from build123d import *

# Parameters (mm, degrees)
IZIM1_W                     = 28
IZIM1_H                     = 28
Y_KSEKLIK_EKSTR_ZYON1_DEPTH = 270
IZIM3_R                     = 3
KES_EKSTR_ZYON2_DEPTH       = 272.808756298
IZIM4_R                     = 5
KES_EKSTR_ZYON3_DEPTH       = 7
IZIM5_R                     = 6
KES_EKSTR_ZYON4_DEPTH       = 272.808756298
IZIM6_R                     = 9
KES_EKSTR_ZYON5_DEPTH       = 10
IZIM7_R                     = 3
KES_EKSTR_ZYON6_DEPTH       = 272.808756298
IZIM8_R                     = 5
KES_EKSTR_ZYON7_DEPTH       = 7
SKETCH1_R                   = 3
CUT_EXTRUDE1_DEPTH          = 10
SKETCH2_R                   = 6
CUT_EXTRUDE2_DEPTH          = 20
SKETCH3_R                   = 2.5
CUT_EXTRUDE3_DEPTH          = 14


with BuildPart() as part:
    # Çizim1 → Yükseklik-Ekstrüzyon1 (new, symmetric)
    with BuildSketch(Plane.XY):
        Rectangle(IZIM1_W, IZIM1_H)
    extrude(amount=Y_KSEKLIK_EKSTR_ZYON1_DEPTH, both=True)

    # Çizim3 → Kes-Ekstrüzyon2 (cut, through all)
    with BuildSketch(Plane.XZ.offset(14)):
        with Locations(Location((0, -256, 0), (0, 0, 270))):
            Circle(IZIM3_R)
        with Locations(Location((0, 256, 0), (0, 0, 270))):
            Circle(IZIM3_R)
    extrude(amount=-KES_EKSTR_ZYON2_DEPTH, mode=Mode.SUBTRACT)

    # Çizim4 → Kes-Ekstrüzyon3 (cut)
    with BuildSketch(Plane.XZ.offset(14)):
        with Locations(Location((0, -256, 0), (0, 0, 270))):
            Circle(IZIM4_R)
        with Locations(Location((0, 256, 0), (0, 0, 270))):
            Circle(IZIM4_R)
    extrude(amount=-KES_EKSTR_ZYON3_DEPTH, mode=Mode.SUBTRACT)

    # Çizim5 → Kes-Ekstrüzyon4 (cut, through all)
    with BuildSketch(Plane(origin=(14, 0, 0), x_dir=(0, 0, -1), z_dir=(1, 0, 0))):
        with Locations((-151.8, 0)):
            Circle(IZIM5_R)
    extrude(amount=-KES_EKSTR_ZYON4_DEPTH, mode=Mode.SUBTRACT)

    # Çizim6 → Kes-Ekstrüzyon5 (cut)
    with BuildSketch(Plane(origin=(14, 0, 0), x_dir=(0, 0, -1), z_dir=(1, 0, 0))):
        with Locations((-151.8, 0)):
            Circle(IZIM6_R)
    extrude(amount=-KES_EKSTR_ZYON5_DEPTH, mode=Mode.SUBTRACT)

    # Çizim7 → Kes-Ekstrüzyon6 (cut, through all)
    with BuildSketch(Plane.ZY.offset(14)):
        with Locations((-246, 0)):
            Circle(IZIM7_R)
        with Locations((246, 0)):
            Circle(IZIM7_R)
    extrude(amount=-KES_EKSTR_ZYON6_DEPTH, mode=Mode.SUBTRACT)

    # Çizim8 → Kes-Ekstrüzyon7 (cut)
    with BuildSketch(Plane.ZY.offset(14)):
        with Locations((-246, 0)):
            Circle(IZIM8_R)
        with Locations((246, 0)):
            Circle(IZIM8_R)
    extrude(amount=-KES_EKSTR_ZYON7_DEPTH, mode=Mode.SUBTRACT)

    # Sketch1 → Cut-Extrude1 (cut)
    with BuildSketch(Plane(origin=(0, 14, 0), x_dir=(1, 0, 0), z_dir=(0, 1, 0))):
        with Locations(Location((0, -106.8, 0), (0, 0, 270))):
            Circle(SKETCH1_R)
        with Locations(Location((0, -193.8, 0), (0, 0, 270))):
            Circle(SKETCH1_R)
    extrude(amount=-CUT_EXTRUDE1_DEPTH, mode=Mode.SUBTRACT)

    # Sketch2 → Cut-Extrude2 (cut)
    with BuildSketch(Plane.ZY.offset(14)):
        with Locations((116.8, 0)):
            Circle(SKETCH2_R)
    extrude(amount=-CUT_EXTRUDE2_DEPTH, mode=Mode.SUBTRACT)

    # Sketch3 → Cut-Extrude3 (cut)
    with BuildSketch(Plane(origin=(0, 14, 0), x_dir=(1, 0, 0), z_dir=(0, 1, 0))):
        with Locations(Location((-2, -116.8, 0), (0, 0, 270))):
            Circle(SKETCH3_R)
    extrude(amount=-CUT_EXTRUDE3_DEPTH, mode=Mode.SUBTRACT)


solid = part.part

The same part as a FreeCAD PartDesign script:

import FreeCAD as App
import Part
import Sketcher
Q = App.Units.Quantity

doc = App.newDocument("Part")
body = doc.addObject("PartDesign::Body", "Body")

# Sketch on XY plane
sketch1 = doc.addObject("Sketcher::SketchObject", "Sketch")
body.addObject(sketch1)
sketch1.AttachmentSupport = (doc.XY_Plane, [""])
sketch1.MapMode = "FlatFace"
sketch1.addGeometry([
    Part.LineSegment(App.Vector(-14, 14, 0), App.Vector(-14, -14, 0)),
    Part.LineSegment(App.Vector(-14, -14, 0), App.Vector(14, -14, 0)),
    Part.LineSegment(App.Vector(14, -14, 0), App.Vector(14, 14, 0)),
    Part.LineSegment(App.Vector(14, 14, 0), App.Vector(-14, 14, 0)),
], False)
sketch1.addConstraint([
    Sketcher.Constraint("Coincident", 0, 2, 1, 1),
    Sketcher.Constraint("Coincident", 1, 2, 2, 1),
    Sketcher.Constraint("Coincident", 2, 2, 3, 1),
    Sketcher.Constraint("Coincident", 3, 2, 0, 1),
    Sketcher.Constraint("Vertical", 0),
    Sketcher.Constraint("Horizontal", 1),
    Sketcher.Constraint("Vertical", 2),
    Sketcher.Constraint("Horizontal", 3),
    Sketcher.Constraint("Symmetric", 0, 2, 2, 2, -1, 1),
    Sketcher.Constraint("Equal", 3, 0),
    Sketcher.Constraint("DistanceX", 1, 1, 1, 2, Q("28 mm")),
])
pad1 = doc.addObject("PartDesign::Pad", "Pad")
body.addObject(pad1)
pad1.Profile = sketch1
pad1.Length = 540
pad1.Midplane = True

# Sketch on XZ plane
sketch2 = doc.addObject("Sketcher::SketchObject", "Sketch001")
body.addObject(sketch2)
sketch2.AttachmentSupport = (doc.XZ_Plane, [""])
sketch2.MapMode = "FlatFace"
sketch2.AttachmentOffset = App.Placement(App.Vector(0, 0, 14), App.Rotation())
sketch2.addGeometry([
    Part.Circle(App.Vector(0, -256, 0), App.Vector(0, 0, 1), 3),
    Part.Circle(App.Vector(0, 256, 0), App.Vector(0, 0, 1), 3),
], False)
sketch2.addConstraint([
    Sketcher.Constraint("Equal", 0, 1),
    Sketcher.Constraint("Symmetric", 0, 3, 1, 3, -1, 1),
    Sketcher.Constraint("PointOnObject", 0, 3, -2),
    Sketcher.Constraint("Diameter", 0, Q("6 mm")),
    Sketcher.Constraint("DistanceY", 0, 3, -1, 1, Q("256 mm")),
])
pocket1 = doc.addObject("PartDesign::Pocket", "Pocket")
body.addObject(pocket1)
pocket1.Profile = sketch2
pocket1.Type = "ThroughAll"

# Sketch on XZ plane
sketch3 = doc.addObject("Sketcher::SketchObject", "Sketch002")
body.addObject(sketch3)
sketch3.AttachmentSupport = (doc.XZ_Plane, [""])
sketch3.MapMode = "FlatFace"
sketch3.AttachmentOffset = App.Placement(App.Vector(0, 0, 14), App.Rotation())
sketch3.addGeometry([
    Part.Circle(App.Vector(0, -256, 0), App.Vector(0, 0, 1), 5),
    Part.Circle(App.Vector(0, 256, 0), App.Vector(0, 0, 1), 5),
], False)
sketch3.addConstraint([
    Sketcher.Constraint("Equal", 0, 1),
    Sketcher.Constraint("Symmetric", 0, 3, 1, 3, -1, 1),
    Sketcher.Constraint("PointOnObject", 0, 3, -2),
    Sketcher.Constraint("Diameter", 0, Q("10 mm")),
    Sketcher.Constraint("DistanceY", 0, 3, -1, 1, Q("256 mm")),
])
pocket2 = doc.addObject("PartDesign::Pocket", "Pocket001")
body.addObject(pocket2)
pocket2.Profile = sketch3
pocket2.Length = 7

# Sketch on YZ plane
sketch4 = doc.addObject("Sketcher::SketchObject", "Sketch003")
body.addObject(sketch4)
sketch4.AttachmentSupport = (doc.YZ_Plane, [""])
sketch4.MapMode = "FlatFace"
sketch4.AttachmentOffset = App.Placement(App.Vector(0, 0, 14), App.Rotation())
sketch4.addGeometry(Part.Circle(App.Vector(0, 152, 0), App.Vector(0, 0, 1), 6), False)
sketch4.addConstraint([
    Sketcher.Constraint("PointOnObject", 0, 3, -2),
    Sketcher.Constraint("Diameter", 0, Q("12 mm")),
    Sketcher.Constraint("DistanceY", -1, 1, 0, 3, Q("151.8 mm")),
])
pocket3 = doc.addObject("PartDesign::Pocket", "Pocket002")
body.addObject(pocket3)
pocket3.Profile = sketch4
pocket3.Type = "ThroughAll"

# Sketch on YZ plane
sketch5 = doc.addObject("Sketcher::SketchObject", "Sketch004")
body.addObject(sketch5)
sketch5.AttachmentSupport = (doc.YZ_Plane, [""])
sketch5.MapMode = "FlatFace"
sketch5.AttachmentOffset = App.Placement(App.Vector(0, 0, 14), App.Rotation())
sketch5.addGeometry(Part.Circle(App.Vector(0, 152, 0), App.Vector(0, 0, 1), 9), False)
sketch5.addConstraint([
    Sketcher.Constraint("PointOnObject", 0, 3, -2),
    Sketcher.Constraint("Diameter", 0, Q("18 mm")),
    Sketcher.Constraint("DistanceY", -1, 1, 0, 3, Q("151.8 mm")),
])
pocket4 = doc.addObject("PartDesign::Pocket", "Pocket003")
body.addObject(pocket4)
pocket4.Profile = sketch5
pocket4.Length = 10

# Sketch on YZ plane
sketch6 = doc.addObject("Sketcher::SketchObject", "Sketch005")
body.addObject(sketch6)
sketch6.AttachmentSupport = (doc.YZ_Plane, [""])
sketch6.MapMode = "FlatFace"
sketch6.AttachmentOffset = App.Placement(App.Vector(0, 0, -14), App.Rotation())
sketch6.addGeometry([
    Part.Circle(App.Vector(0, -246, 0), App.Vector(0, 0, 1), 3),
    Part.Circle(App.Vector(0, 246, 0), App.Vector(0, 0, 1), 3),
], False)
sketch6.addConstraint([
    Sketcher.Constraint("Equal", 0, 1),
    Sketcher.Constraint("Symmetric", 0, 3, 1, 3, -1, 1),
    Sketcher.Constraint("PointOnObject", 0, 3, -2),
    Sketcher.Constraint("Diameter", 0, Q("6 mm")),
    Sketcher.Constraint("DistanceY", 0, 3, -1, 1, Q("246 mm")),
])
pocket5 = doc.addObject("PartDesign::Pocket", "Pocket004")
body.addObject(pocket5)
pocket5.Profile = sketch6
pocket5.Type = "ThroughAll"
pocket5.Reversed = True

# Sketch on YZ plane
sketch7 = doc.addObject("Sketcher::SketchObject", "Sketch006")
body.addObject(sketch7)
sketch7.AttachmentSupport = (doc.YZ_Plane, [""])
sketch7.MapMode = "FlatFace"
sketch7.AttachmentOffset = App.Placement(App.Vector(0, 0, -14), App.Rotation())
sketch7.addGeometry([
    Part.Circle(App.Vector(0, -246, 0), App.Vector(0, 0, 1), 5),
    Part.Circle(App.Vector(0, 246, 0), App.Vector(0, 0, 1), 5),
], False)
sketch7.addConstraint([
    Sketcher.Constraint("Equal", 0, 1),
    Sketcher.Constraint("Symmetric", 0, 3, 1, 3, -1, 1),
    Sketcher.Constraint("PointOnObject", 0, 3, -2),
    Sketcher.Constraint("Diameter", 0, Q("10 mm")),
    Sketcher.Constraint("DistanceY", 0, 3, -1, 1, Q("246 mm")),
])
pocket6 = doc.addObject("PartDesign::Pocket", "Pocket005")
body.addObject(pocket6)
pocket6.Profile = sketch7
pocket6.Length = 7
pocket6.Reversed = True

# Sketch on XZ plane
sketch8 = doc.addObject("Sketcher::SketchObject", "Sketch007")
body.addObject(sketch8)
sketch8.AttachmentSupport = (doc.XZ_Plane, [""])
sketch8.MapMode = "FlatFace"
sketch8.AttachmentOffset = App.Placement(App.Vector(0, 0, -14), App.Rotation())
sketch8.addGeometry([
    Part.Circle(App.Vector(0, 106.8, 0), App.Vector(0, 0, 1), 3),
    Part.Circle(App.Vector(0, 193.8, 0), App.Vector(0, 0, 1), 3),
], False)
sketch8.addConstraint([
    Sketcher.Constraint("Equal", 0, 1),
    Sketcher.Constraint("PointOnObject", 0, 3, -2),
    Sketcher.Constraint("PointOnObject", 1, 3, -2),
    Sketcher.Constraint("Diameter", 0, Q("6 mm")),
    Sketcher.Constraint("DistanceY", 0, 3, 1, 3, Q("87 mm")),
    Sketcher.Constraint("DistanceY", -1, 1, 0, 3, Q("106.8 mm")),
])
pocket7 = doc.addObject("PartDesign::Pocket", "Pocket006")
body.addObject(pocket7)
pocket7.Profile = sketch8
pocket7.Length = 10
pocket7.Reversed = True

# Sketch on YZ plane
sketch9 = doc.addObject("Sketcher::SketchObject", "Sketch008")
body.addObject(sketch9)
sketch9.AttachmentSupport = (doc.YZ_Plane, [""])
sketch9.MapMode = "FlatFace"
sketch9.AttachmentOffset = App.Placement(App.Vector(0, 0, -14), App.Rotation())
sketch9.addGeometry(Part.Circle(App.Vector(0, 117, 0), App.Vector(0, 0, 1), 6), False)
sketch9.addConstraint([
    Sketcher.Constraint("PointOnObject", 0, 3, -2),
    Sketcher.Constraint("Diameter", 0, Q("12 mm")),
    Sketcher.Constraint("DistanceY", -1, 1, 0, 3, Q("116.8 mm")),
])
pocket8 = doc.addObject("PartDesign::Pocket", "Pocket007")
body.addObject(pocket8)
pocket8.Profile = sketch9
pocket8.Length = 20
pocket8.Reversed = True

# Sketch on XZ plane
sketch10 = doc.addObject("Sketcher::SketchObject", "Sketch009")
body.addObject(sketch10)
sketch10.AttachmentSupport = (doc.XZ_Plane, [""])
sketch10.MapMode = "FlatFace"
sketch10.AttachmentOffset = App.Placement(App.Vector(0, 0, -14), App.Rotation())
sketch10.addGeometry(Part.Circle(App.Vector(-2, 116.8, 0), App.Vector(0, 0, 1), 2.5), False)
sketch10.addConstraint([
    Sketcher.Constraint("Diameter", 0, Q("5 mm")),
    Sketcher.Constraint("DistanceX", 0, 3, -1, 1, Q("2 mm")),
    Sketcher.Constraint("DistanceY", -1, 1, 0, 3, Q("116.8 mm")),
])
pocket9 = doc.addObject("PartDesign::Pocket", "Pocket008")
body.addObject(pocket9)
pocket9.Profile = sketch10
pocket9.Length = 14
pocket9.Reversed = True

doc.recompute()
